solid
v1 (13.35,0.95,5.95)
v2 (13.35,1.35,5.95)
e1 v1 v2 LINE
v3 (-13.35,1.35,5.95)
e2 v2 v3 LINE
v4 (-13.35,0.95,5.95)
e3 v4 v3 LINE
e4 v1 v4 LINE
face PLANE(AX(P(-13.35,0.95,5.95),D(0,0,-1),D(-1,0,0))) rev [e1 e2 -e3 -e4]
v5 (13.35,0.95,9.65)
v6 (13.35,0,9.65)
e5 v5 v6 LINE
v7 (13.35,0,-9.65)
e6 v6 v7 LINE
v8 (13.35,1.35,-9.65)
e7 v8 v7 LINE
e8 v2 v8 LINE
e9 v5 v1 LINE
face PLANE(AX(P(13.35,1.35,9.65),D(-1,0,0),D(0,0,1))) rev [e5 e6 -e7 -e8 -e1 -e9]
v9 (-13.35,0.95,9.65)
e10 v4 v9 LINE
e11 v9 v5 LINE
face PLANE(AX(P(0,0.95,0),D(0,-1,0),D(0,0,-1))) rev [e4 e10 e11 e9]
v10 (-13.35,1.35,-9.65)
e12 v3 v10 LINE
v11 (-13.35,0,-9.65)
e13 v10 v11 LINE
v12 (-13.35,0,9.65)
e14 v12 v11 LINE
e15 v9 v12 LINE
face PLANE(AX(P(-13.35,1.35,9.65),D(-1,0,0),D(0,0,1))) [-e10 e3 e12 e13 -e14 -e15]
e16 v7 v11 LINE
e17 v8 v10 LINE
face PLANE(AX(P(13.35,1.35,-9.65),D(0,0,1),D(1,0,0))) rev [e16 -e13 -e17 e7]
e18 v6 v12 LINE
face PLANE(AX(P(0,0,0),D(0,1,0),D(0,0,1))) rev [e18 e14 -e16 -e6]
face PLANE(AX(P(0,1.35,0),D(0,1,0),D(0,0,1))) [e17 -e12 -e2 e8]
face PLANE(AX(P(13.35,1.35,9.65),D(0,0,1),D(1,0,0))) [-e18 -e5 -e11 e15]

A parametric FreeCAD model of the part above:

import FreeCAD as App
import Part
import Sketcher
from FreeCAD import Vector
Q = App.Units.Quantity

doc = App.newDocument("Part")
body = doc.addObject("PartDesign::Body", "Body")

# Sketch on XZ plane
sketch1 = body.newObject("Sketcher::SketchObject", "Sketch")
sketch1.AttachmentSupport = (doc.getObject("XZ_Plane"), [""])
sketch1.MapMode = "FlatFace"
sketch1.addGeometry(Part.LineSegment(Vector(-13.35, -9.65, 0), Vector(-13.35, 9.65, 0)), False)
sketch1.addGeometry(Part.LineSegment(Vector(-13.35, 9.65, 0), Vector(13.35, 9.65, 0)), False)
sketch1.addGeometry(Part.LineSegment(Vector(13.35, 9.65, 0), Vector(13.35, -9.65, 0)), False)
sketch1.addGeometry(Part.LineSegment(Vector(13.35, -9.65, 0), Vector(-13.35, -9.65, 0)), False)
sketch1.addConstraint(Sketcher.Constraint("Coincident", 0, 2, 1, 1))
sketch1.addConstraint(Sketcher.Constraint("Coincident", 1, 2, 2, 1))
sketch1.addConstraint(Sketcher.Constraint("Coincident", 2, 2, 3, 1))
sketch1.addConstraint(Sketcher.Constraint("Coincident", 3, 2, 0, 1))
sketch1.addConstraint(Sketcher.Constraint("Vertical", 0))
sketch1.addConstraint(Sketcher.Constraint("Horizontal", 1))
sketch1.addConstraint(Sketcher.Constraint("Vertical", 2))
sketch1.addConstraint(Sketcher.Constraint("Horizontal", 3))
sketch1.addConstraint(Sketcher.Constraint("Symmetric", 0, 2, 2, 2, -1, 1))
sketch1.addConstraint(Sketcher.Constraint("DistanceX", 1, 1, 1, 2, Q("26.7 mm")))
sketch1.addConstraint(Sketcher.Constraint("DistanceY", 0, 1, 0, 2, Q("19.3 mm")))
pad1 = body.newObject("PartDesign::Pad", "Pad")
pad1.Profile = sketch1
pad1.Length = 1.35
pad1.Reversed = True

# Sketch on XZ plane
sketch2 = body.newObject("Sketcher::SketchObject", "Sketch001")
sketch2.AttachmentSupport = (doc.getObject("XZ_Plane"), [""])
sketch2.MapMode = "FlatFace"
sketch2.AttachmentOffset = App.Placement(Vector(0, 0, -1.35), App.Rotation())
sketch2.addGeometry(Part.LineSegment(Vector(-13.35, 5.95, 0), Vector(-13.35, 9.65, 0)), False)
sketch2.addGeometry(Part.LineSegment(Vector(-13.35, 9.65, 0), Vector(13.35, 9.65, 0)), False)
sketch2.addGeometry(Part.LineSegment(Vector(13.35, 9.65, 0), Vector(13.35, 5.95, 0)), False)
sketch2.addGeometry(Part.LineSegment(Vector(13.35, 5.95, 0), Vector(-13.35, 5.95, 0)), False)
sketch2.addConstraint(Sketcher.Constraint("Coincident", 0, 2, 1, 1))
sketch2.addConstraint(Sketcher.Constraint("Coincident", 1, 2, 2, 1))
sketch2.addConstraint(Sketcher.Constraint("Coincident", 2, 2, 3, 1))
sketch2.addConstraint(Sketcher.Constraint("Coincident", 3, 2, 0, 1))
sketch2.addConstraint(Sketcher.Constraint("Vertical", 0))
sketch2.addConstraint(Sketcher.Constraint("Horizontal", 1))
sketch2.addConstraint(Sketcher.Constraint("Vertical", 2))
sketch2.addConstraint(Sketcher.Constraint("Horizontal", 3))
sketch2.addConstraint(Sketcher.Constraint("DistanceX", 1, 1, 1, 2, Q("26.7 mm")))
sketch2.addConstraint(Sketcher.Constraint("DistanceY", 0, 1, 0, 2, Q("3.7 mm")))
sketch2.addConstraint(Sketcher.Constraint("DistanceX", 0, 2, -1, 1, Q("13.35 mm")))
sketch2.addConstraint(Sketcher.Constraint("DistanceY", -1, 1, 0, 2, Q("9.65 mm")))
pocket1 = body.newObject("PartDesign::Pocket", "Pocket")
pocket1.Profile = sketch2
pocket1.Length = 0.4
pocket1.Reversed = True

doc.recompute()
